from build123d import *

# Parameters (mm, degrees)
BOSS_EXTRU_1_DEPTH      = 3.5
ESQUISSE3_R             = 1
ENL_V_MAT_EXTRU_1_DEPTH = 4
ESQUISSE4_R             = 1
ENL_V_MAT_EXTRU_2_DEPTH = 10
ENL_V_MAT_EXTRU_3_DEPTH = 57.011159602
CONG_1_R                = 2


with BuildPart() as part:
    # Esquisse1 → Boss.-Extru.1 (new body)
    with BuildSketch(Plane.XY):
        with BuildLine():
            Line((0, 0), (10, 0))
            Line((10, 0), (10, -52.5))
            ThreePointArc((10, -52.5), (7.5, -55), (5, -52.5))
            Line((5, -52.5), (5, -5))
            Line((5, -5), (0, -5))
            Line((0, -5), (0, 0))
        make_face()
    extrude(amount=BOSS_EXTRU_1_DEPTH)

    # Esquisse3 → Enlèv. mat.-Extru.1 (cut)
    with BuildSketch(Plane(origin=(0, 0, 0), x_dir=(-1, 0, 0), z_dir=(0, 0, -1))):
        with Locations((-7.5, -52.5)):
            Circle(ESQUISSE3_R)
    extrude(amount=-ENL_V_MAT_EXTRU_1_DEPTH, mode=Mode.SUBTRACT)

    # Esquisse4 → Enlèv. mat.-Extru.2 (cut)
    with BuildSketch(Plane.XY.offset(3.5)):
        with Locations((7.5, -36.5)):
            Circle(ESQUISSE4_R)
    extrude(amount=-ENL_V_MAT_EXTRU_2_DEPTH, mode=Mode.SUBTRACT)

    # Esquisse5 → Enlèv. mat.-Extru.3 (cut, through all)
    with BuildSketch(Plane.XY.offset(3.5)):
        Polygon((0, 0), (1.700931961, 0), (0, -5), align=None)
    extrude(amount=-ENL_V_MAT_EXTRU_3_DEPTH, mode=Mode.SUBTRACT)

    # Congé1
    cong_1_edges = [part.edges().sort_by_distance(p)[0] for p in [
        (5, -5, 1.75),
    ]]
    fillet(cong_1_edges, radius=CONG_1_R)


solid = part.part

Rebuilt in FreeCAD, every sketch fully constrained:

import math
import FreeCAD as App
import Part
import Sketcher


def edges_at(feature, points):
    """Names of the edges that pass closest to the given points."""
    edges = feature.Shape.Edges
    near = lambda p: min(range(len(edges)), key=lambda i: edges[i].distToShape(Part.Vertex(*p))[0])
    return sorted({f"Edge{near(p) + 1}" for p in points})

doc = App.newDocument("Part")
body = doc.addObject("PartDesign::Body", "Body")

# Sketch on XY plane
sketch1 = body.newObject("Sketcher::SketchObject", "Sketch")
sketch1.AttachmentSupport = (doc.getObject("XY_Plane"), [""])
sketch1.MapMode = "FlatFace"
sketch1.addGeometry([
    Part.LineSegment(App.Vector(10, 0, 0), App.Vector(0, 0, 0)),  # 0
    Part.LineSegment(App.Vector(0, 0, 0), App.Vector(0, -5, 0)),  # 1
    Part.LineSegment(App.Vector(0, -5, 0), App.Vector(5, -5, 0)),  # 2
    Part.LineSegment(App.Vector(5, -5, 0), App.Vector(5, -52.5, 0)),  # 3
    Part.ArcOfCircle(Part.Circle(App.Vector(7.5, -52.5, 0), App.Vector(0, 0, 1), 2.5), math.radians(180), math.radians(360)),  # 4
    Part.LineSegment(App.Vector(10, -52.5, 0), App.Vector(10, 0, 0)),  # 5
], False)
sketch1.addConstraint([
    Sketcher.Constraint("Coincident", 0, 2, 1, 1),
    Sketcher.Constraint("Coincident", 1, 2, 2, 1),
    Sketcher.Constraint("Coincident", 2, 2, 3, 1),
    Sketcher.Constraint("Tangent", 3, 2, 4, 1),
    Sketcher.Constraint("Tangent", 4, 2, 5, 1),
    Sketcher.Constraint("Coincident", 5, 2, 0, 1),
    Sketcher.Constraint("Horizontal", 0),
    Sketcher.Constraint("Vertical", 1),
    Sketcher.Constraint("Horizontal", 2),
    Sketcher.Constraint("Vertical", 3),
    Sketcher.Constraint("Vertical", 5),
    Sketcher.Constraint("Coincident", 0, 2, -1, 1),
    Sketcher.Constraint("Equal", 2, 1),
    Sketcher.Constraint("Radius", 4, 2.5),
    Sketcher.Constraint("DistanceX", 0, 2, 0, 1, 10.0),
    Sketcher.Constraint("DistanceY", 3, 2, 3, 1, 47.5),
])
pad1 = body.newObject("PartDesign::Pad", "Pad")
pad1.Profile = sketch1
pad1.Length = 3.5

# Sketch on XY plane
sketch2 = body.newObject("Sketcher::SketchObject", "Sketch001")
sketch2.AttachmentSupport = (doc.getObject("XY_Plane"), [""])
sketch2.MapMode = "FlatFace"
sketch2.addGeometry(Part.Circle(App.Vector(7.5, -52.5, 0), App.Vector(0, 0, 1), 1), False)
sketch2.addConstraint([
    Sketcher.Constraint("Diameter", 0, 2.0),
    Sketcher.Constraint("DistanceX", -1, 1, 0, 3, 7.5),
    Sketcher.Constraint("DistanceY", 0, 3, -1, 1, 52.5),
])
pocket1 = body.newObject("PartDesign::Pocket", "Pocket")
pocket1.Profile = sketch2
pocket1.Length = 4
pocket1.Reversed = True

# Sketch on XY plane
sketch3 = body.newObject("Sketcher::SketchObject", "Sketch002")
sketch3.AttachmentSupport = (doc.getObject("XY_Plane"), [""])
sketch3.MapMode = "FlatFace"
sketch3.AttachmentOffset = App.Placement(App.Vector(0, 0, 3.5), App.Rotation())
sketch3.addGeometry(Part.Circle(App.Vector(7.5, -36.5, 0), App.Vector(0, 0, 1), 1), False)
sketch3.addConstraint([
    Sketcher.Constraint("Diameter", 0, 2.0),
    Sketcher.Constraint("DistanceX", -1, 1, 0, 3, 7.5),
    Sketcher.Constraint("DistanceY", 0, 3, -1, 1, 36.5),
])
pocket2 = body.newObject("PartDesign::Pocket", "Pocket001")
pocket2.Profile = sketch3
pocket2.Length = 10

# Sketch on XY plane
sketch4 = body.newObject("Sketcher::SketchObject", "Sketch003")
sketch4.AttachmentSupport = (doc.getObject("XY_Plane"), [""])
sketch4.MapMode = "FlatFace"
sketch4.AttachmentOffset = App.Placement(App.Vector(0, 0, 3.5), App.Rotation())
sketch4.addGeometry([
    Part.LineSegment(App.Vector(1.700932, 0, 0), App.Vector(0, 0, 0)),
    Part.LineSegment(App.Vector(0, 0, 0), App.Vector(0, -5, 0)),
    Part.LineSegment(App.Vector(0, -5, 0), App.Vector(1.700932, 0, 0)),
], False)
sketch4.addConstraint([
    Sketcher.Constraint("Coincident", 0, 2, 1, 1),
    Sketcher.Constraint("Coincident", 1, 2, 2, 1),
    Sketcher.Constraint("Coincident", 2, 2, 0, 1),
    Sketcher.Constraint("Horizontal", 0),
    Sketcher.Constraint("Vertical", 1),
    Sketcher.Constraint("Coincident", 0, 2, -1, 1),
    Sketcher.Constraint("DistanceY", 1, 2, 1, 1, 5.0),
    Sketcher.Constraint("Distance", 2, 5.281398),
])
pocket3 = body.newObject("PartDesign::Pocket", "Pocket002")
pocket3.Profile = sketch4
pocket3.Type = "ThroughAll"
doc.recompute()

fillet = body.newObject("PartDesign::Fillet", "Fillet")
fillet.Base = (pocket3, edges_at(pocket3, [(5, -5, 1.75)]))
fillet.Radius = 2

doc.recompute()
